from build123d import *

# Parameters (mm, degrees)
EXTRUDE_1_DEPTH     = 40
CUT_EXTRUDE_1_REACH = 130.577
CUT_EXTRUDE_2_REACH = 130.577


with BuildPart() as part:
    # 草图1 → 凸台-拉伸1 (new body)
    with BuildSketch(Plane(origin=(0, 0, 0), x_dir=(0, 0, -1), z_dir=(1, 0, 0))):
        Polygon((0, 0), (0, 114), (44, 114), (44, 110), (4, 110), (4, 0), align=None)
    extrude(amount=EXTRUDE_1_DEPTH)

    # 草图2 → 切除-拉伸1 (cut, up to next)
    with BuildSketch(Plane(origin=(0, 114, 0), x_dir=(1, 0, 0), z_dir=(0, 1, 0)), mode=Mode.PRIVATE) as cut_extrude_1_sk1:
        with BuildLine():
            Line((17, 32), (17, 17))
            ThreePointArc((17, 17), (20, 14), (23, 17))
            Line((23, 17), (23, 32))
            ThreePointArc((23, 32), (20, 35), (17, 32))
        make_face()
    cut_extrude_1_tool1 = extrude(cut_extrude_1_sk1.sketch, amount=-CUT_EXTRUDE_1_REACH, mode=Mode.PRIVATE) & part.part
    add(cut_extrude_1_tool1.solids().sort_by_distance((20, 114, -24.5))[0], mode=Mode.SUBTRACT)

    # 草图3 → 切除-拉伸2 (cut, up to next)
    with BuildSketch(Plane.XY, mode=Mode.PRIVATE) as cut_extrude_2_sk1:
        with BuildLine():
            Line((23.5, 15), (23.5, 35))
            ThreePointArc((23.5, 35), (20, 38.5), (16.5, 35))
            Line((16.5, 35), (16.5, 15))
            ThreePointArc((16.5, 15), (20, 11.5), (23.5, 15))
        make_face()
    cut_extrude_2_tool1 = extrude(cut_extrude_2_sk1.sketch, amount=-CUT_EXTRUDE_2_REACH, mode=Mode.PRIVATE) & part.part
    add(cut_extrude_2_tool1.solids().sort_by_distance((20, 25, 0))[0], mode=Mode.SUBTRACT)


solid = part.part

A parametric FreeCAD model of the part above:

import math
import FreeCAD as App
import Part
import Sketcher
Q = App.Units.Quantity


def add_polygon(sketch, points):
    """Adds a closed chain of lines whose ends are joined by coincident constraints."""
    first, n = sketch.GeometryCount, len(points)
    for a, b in zip(points, points[1:] + points[:1]):
        sketch.addGeometry(Part.LineSegment(App.Vector(*a, 0), App.Vector(*b, 0)), False)
    for i in range(n):
        sketch.addConstraint(Sketcher.Constraint("Coincident", first + i, 2, first + (i + 1) % n, 1))

doc = App.newDocument("Part")
body = doc.addObject("PartDesign::Body", "Body")

# Sketch on YZ plane
sketch1 = doc.addObject("Sketcher::SketchObject", "Sketch")
body.addObject(sketch1)
sketch1.AttachmentSupport = (doc.YZ_Plane, [""])
sketch1.MapMode = "FlatFace"
add_polygon(sketch1, [(114, 0), (0, 0), (0, -4), (110, -4), (110, -44), (114, -44)])  # lines 0-5
sketch1.addConstraint([
    Sketcher.Constraint("Horizontal", 0),
    Sketcher.Constraint("Vertical", 1),
    Sketcher.Constraint("Horizontal", 2),
    Sketcher.Constraint("Vertical", 3),
    Sketcher.Constraint("Horizontal", 4),
    Sketcher.Constraint("Vertical", 5),
    Sketcher.Constraint("Coincident", 0, 2, -1, 1),
    Sketcher.Constraint("Equal", 4, 1),
    Sketcher.Constraint("DistanceX", 0, 2, 0, 1, Q("114 mm")),
    Sketcher.Constraint("DistanceX", 2, 1, 2, 2, Q("110 mm")),
    Sketcher.Constraint("DistanceY", 3, 2, 3, 1, Q("40 mm")),
])
pad1 = doc.addObject("PartDesign::Pad", "Pad")
body.addObject(pad1)
pad1.Profile = sketch1
pad1.Length = 40

# Sketch on XZ plane
sketch2 = doc.addObject("Sketcher::SketchObject", "Sketch001")
body.addObject(sketch2)
sketch2.AttachmentSupport = (doc.XZ_Plane, [""])
sketch2.MapMode = "FlatFace"
sketch2.AttachmentOffset = App.Placement(App.Vector(0, 0, -114), App.Rotation())
sketch2.addGeometry([
    Part.LineSegment(App.Vector(17, -32, 0), App.Vector(17, -17, 0)),
    Part.ArcOfCircle(Part.Circle(App.Vector(20, -17, 0), App.Vector(0, 0, 1), 3), math.radians(0), math.radians(180)),
    Part.LineSegment(App.Vector(23, -17, 0), App.Vector(23, -32, 0)),
    Part.ArcOfCircle(Part.Circle(App.Vector(20, -32, 0), App.Vector(0, 0, 1), 3), math.radians(180), math.radians(360)),
], False)
sketch2.addConstraint([
    Sketcher.Constraint("Tangent", 0, 2, 1, 2),
    Sketcher.Constraint("Tangent", 1, 1, 2, 1),
    Sketcher.Constraint("Tangent", 2, 2, 3, 2),
    Sketcher.Constraint("Tangent", 3, 1, 0, 1),
    Sketcher.Constraint("Vertical", 0),
    Sketcher.Constraint("Vertical", 2),
    Sketcher.Constraint("Radius", 1, Q("3 mm")),
    Sketcher.Constraint("DistanceY", 0, 1, 0, 2, Q("15 mm")),
    Sketcher.Constraint("DistanceX", -1, 1, 1, 3, Q("20 mm")),
    Sketcher.Constraint("DistanceY", 1, 3, -1, 1, Q("17 mm")),
])
pocket1 = doc.addObject("PartDesign::Pocket", "Pocket")
body.addObject(pocket1)
pocket1.Profile = sketch2
pocket1.Type = "UpToFirst"
pocket1.Reversed = True

# Sketch on XY plane
sketch3 = doc.addObject("Sketcher::SketchObject", "Sketch002")
body.addObject(sketch3)
sketch3.AttachmentSupport = (doc.XY_Plane, [""])
sketch3.MapMode = "FlatFace"
sketch3.addGeometry([
    Part.LineSegment(App.Vector(23.5, 15, 0), App.Vector(23.5, 35, 0)),
    Part.ArcOfCircle(Part.Circle(App.Vector(20, 35, 0), App.Vector(0, 0, 1), 3.5), math.radians(0), math.radians(180)),
    Part.LineSegment(App.Vector(16.5, 35, 0), App.Vector(16.5, 15, 0)),
    Part.ArcOfCircle(Part.Circle(App.Vector(20, 15, 0), App.Vector(0, 0, 1), 3.5), math.radians(180), math.radians(360)),
], False)
sketch3.addConstraint([
    Sketcher.Constraint("Tangent", 0, 2, 1, 1),
    Sketcher.Constraint("Tangent", 1, 2, 2, 1),
    Sketcher.Constraint("Tangent", 2, 2, 3, 1),
    Sketcher.Constraint("Tangent", 3, 2, 0, 1),
    Sketcher.Constraint("Vertical", 0),
    Sketcher.Constraint("Vertical", 2),
    Sketcher.Constraint("Radius", 1, Q("3.5 mm")),
    Sketcher.Constraint("DistanceY", 0, 1, 0, 2, Q("20 mm")),
    Sketcher.Constraint("DistanceX", -1, 1, 1, 3, Q("20 mm")),
    Sketcher.Constraint("DistanceY", -1, 1, 1, 3, Q("35 mm")),
])
pocket2 = doc.addObject("PartDesign::Pocket", "Pocket001")
body.addObject(pocket2)
pocket2.Profile = sketch3
pocket2.Type = "UpToFirst"

doc.recompute()
